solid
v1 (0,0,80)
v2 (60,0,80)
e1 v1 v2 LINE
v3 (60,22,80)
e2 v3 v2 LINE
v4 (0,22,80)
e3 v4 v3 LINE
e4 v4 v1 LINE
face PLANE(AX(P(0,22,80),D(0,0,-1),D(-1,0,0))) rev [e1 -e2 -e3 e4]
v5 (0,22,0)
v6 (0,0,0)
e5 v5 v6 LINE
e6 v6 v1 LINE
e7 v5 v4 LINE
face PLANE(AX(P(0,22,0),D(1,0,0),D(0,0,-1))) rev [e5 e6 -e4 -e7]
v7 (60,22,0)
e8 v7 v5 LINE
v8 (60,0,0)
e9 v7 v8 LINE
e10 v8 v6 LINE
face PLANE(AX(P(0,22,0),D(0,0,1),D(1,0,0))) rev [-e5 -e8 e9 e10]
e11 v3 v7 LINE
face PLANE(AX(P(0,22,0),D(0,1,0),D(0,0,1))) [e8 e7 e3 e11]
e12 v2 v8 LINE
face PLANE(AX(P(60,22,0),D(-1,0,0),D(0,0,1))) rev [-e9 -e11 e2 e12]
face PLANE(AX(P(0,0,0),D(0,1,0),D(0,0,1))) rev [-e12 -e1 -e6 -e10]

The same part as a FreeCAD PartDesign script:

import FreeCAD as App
import Part
import Sketcher


def add_polygon(sketch, points):
    """Adds a closed chain of lines whose ends are joined by coincident constraints."""
    first, n = sketch.GeometryCount, len(points)
    for a, b in zip(points, points[1:] + points[:1]):
        sketch.addGeometry(Part.LineSegment(App.Vector(*a, 0), App.Vector(*b, 0)), False)
    for i in range(n):
        sketch.addConstraint(Sketcher.Constraint("Coincident", first + i, 2, first + (i + 1) % n, 1))

doc = App.newDocument("Part")
params = doc.addObject("Spreadsheet::Sheet", "Params")
for row, (alias, value) in enumerate([
    ("sketch1_width", "60 mm"),
    ("sketch1_height", "80 mm"),
    ("pad1_length", "22 mm"),
], start=1):
    params.set(f"A{row}", alias)
    params.set(f"B{row}", "=" + value)
    params.setAlias(f"B{row}", alias)

body = doc.addObject("PartDesign::Body", "Body")

sketch1 = body.newObject("Sketcher::SketchObject", "Sketch")
sketch1.AttachmentSupport = (doc.getObject("XZ_Plane"), [""])
sketch1.MapMode = "FlatFace"
add_polygon(sketch1, [(0, 0), (0, 80), (60, 80), (60, 0)])
sketch1.addConstraint([
    Sketcher.Constraint("Vertical", 0),
    Sketcher.Constraint("Horizontal", 1),
    Sketcher.Constraint("Vertical", 2),
    Sketcher.Constraint("Horizontal", 3),
    Sketcher.Constraint("Coincident", 3, 2, -1, 1),
    Sketcher.Constraint("DistanceX", 1, 1, 1, 2, 60.0),
    Sketcher.Constraint("DistanceY", 0, 1, 0, 2, 80.0),
])
sketch1.setExpression("Constraints[9]", "Params.sketch1_width")
sketch1.setExpression("Constraints[10]", "Params.sketch1_height")
pad1 = body.newObject("PartDesign::Pad", "Pad")
pad1.Profile = sketch1
pad1.setExpression("Length", "Params.pad1_length")
pad1.Reversed = True

doc.recompute()
